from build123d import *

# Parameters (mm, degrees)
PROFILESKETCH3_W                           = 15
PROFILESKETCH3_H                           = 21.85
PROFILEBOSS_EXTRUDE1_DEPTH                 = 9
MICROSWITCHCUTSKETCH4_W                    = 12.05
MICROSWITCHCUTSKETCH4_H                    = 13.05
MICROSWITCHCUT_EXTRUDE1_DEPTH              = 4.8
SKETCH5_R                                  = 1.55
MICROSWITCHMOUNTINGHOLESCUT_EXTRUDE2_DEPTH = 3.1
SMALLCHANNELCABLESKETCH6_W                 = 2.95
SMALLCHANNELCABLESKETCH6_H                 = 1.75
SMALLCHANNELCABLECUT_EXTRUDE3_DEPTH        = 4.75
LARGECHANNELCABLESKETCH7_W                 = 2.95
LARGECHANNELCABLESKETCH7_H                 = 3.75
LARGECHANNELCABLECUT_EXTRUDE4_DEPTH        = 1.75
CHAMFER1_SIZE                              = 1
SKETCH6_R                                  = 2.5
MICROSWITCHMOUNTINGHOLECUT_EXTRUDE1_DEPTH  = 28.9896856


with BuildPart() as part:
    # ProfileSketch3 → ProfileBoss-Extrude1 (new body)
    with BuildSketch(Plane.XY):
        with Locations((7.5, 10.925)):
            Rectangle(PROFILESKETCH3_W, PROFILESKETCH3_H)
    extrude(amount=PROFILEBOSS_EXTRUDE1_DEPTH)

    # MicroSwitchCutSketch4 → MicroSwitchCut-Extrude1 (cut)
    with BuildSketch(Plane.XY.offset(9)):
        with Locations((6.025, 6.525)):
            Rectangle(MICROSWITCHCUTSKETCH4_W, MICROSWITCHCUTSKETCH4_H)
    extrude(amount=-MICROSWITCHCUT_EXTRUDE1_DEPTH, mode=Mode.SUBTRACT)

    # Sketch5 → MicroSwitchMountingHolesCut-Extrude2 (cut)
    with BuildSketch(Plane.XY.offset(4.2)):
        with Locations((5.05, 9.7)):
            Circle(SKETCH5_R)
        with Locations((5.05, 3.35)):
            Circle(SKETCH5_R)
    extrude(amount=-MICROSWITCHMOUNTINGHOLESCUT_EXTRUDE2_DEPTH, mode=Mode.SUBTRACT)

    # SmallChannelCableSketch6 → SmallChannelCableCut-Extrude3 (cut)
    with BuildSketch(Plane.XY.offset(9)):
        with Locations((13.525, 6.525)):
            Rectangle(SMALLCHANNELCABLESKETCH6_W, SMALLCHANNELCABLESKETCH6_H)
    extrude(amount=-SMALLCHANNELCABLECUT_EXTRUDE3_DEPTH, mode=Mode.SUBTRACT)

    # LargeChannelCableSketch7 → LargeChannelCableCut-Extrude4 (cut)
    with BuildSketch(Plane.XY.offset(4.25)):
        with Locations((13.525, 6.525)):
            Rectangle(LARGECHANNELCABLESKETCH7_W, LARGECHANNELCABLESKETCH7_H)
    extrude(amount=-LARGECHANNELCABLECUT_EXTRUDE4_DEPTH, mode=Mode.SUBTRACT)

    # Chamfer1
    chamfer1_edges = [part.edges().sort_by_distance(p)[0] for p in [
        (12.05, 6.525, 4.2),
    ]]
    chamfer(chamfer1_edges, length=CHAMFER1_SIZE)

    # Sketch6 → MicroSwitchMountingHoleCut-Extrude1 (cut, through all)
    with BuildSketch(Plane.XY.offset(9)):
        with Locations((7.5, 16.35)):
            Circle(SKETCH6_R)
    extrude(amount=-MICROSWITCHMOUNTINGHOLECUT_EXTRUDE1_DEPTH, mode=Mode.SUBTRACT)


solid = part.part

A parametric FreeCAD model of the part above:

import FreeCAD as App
import Part
import Sketcher

V = App.Vector
Q = App.Units.Quantity


def edges_at(feature, points):
    """Names of the edges that pass closest to the given points."""
    edges = feature.Shape.Edges
    near = lambda p: min(range(len(edges)), key=lambda i: edges[i].distToShape(Part.Vertex(*p))[0])
    return sorted({f"Edge{near(p) + 1}" for p in points})

doc = App.newDocument("Part")
body = doc.addObject("PartDesign::Body", "Body")

sketch1 = body.newObject("Sketcher::SketchObject", "Sketch")
sketch1.AttachmentSupport = (doc.getObject("XY_Plane"), [""])
sketch1.MapMode = "FlatFace"
sketch1.addGeometry([
    Part.LineSegment(V(0, 22, 0), V(0, 0, 0)),
    Part.LineSegment(V(0, 0, 0), V(15, 0, 0)),
    Part.LineSegment(V(15, 0, 0), V(15, 22, 0)),
    Part.LineSegment(V(15, 22, 0), V(0, 22, 0)),
], False)
sketch1.addConstraint([
    Sketcher.Constraint("Coincident", 0, 2, 1, 1),
    Sketcher.Constraint("Coincident", 1, 2, 2, 1),
    Sketcher.Constraint("Coincident", 2, 2, 3, 1),
    Sketcher.Constraint("Coincident", 3, 2, 0, 1),
    Sketcher.Constraint("Vertical", 0),
    Sketcher.Constraint("Horizontal", 1),
    Sketcher.Constraint("Vertical", 2),
    Sketcher.Constraint("Horizontal", 3),
    Sketcher.Constraint("Coincident", 0, 2, -1, 1),
    Sketcher.Constraint("DistanceX", 1, 1, 1, 2, Q("15 mm")),
    Sketcher.Constraint("DistanceY", 0, 2, 0, 1, Q("21.85 mm")),
])
pad1 = body.newObject("PartDesign::Pad", "Pad")
pad1.Profile = sketch1
pad1.Length = 9

sketch2 = body.newObject("Sketcher::SketchObject", "Sketch001")
sketch2.AttachmentSupport = (doc.getObject("XY_Plane"), [""])
sketch2.MapMode = "FlatFace"
sketch2.AttachmentOffset = App.Placement(V(0, 0, 9), App.Rotation())
sketch2.addGeometry([
    Part.LineSegment(V(0, 13, 0), V(0, 0, 0)),
    Part.LineSegment(V(0, 0, 0), V(12, 0, 0)),
    Part.LineSegment(V(12, 0, 0), V(12, 13, 0)),
    Part.LineSegment(V(12, 13, 0), V(0, 13, 0)),
], False)
sketch2.addConstraint([
    Sketcher.Constraint("Coincident", 0, 2, 1, 1),
    Sketcher.Constraint("Coincident", 1, 2, 2, 1),
    Sketcher.Constraint("Coincident", 2, 2, 3, 1),
    Sketcher.Constraint("Coincident", 3, 2, 0, 1),
    Sketcher.Constraint("Vertical", 0),
    Sketcher.Constraint("Horizontal", 1),
    Sketcher.Constraint("Vertical", 2),
    Sketcher.Constraint("Horizontal", 3),
    Sketcher.Constraint("Coincident", 0, 2, -1, 1),
    Sketcher.Constraint("DistanceX", 1, 1, 1, 2, Q("12.05 mm")),
    Sketcher.Constraint("DistanceY", 0, 2, 0, 1, Q("13.05 mm")),
])
pocket1 = body.newObject("PartDesign::Pocket", "Pocket")
pocket1.Profile = sketch2
pocket1.Length = 4.8

sketch3 = body.newObject("Sketcher::SketchObject", "Sketch002")
sketch3.AttachmentSupport = (doc.getObject("XY_Plane"), [""])
sketch3.MapMode = "FlatFace"
sketch3.AttachmentOffset = App.Placement(V(0, 0, 4.2), App.Rotation())
sketch3.addGeometry([
    Part.Circle(V(5, 9.7, 0), V(0, 0, 1), 1.6),
    Part.Circle(V(5, 3.4, 0), V(0, 0, 1), 1.6),
], False)
sketch3.addConstraint([
    Sketcher.Constraint("Equal", 0, 1),
    Sketcher.Constraint("Vertical", 0, 3, 1, 3),
    Sketcher.Constraint("Diameter", 0, Q("3.1 mm")),
    Sketcher.Constraint("DistanceY", -1, 1, 0, 3, Q("9.7 mm")),
    Sketcher.Constraint("DistanceX", -1, 1, 0, 3, Q("5.05 mm")),
    Sketcher.Constraint("DistanceY", -1, 1, 1, 3, Q("3.35 mm")),
])
pocket2 = body.newObject("PartDesign::Pocket", "Pocket001")
pocket2.Profile = sketch3
pocket2.Length = 3.1

sketch4 = body.newObject("Sketcher::SketchObject", "Sketch003")
sketch4.AttachmentSupport = (doc.getObject("XY_Plane"), [""])
sketch4.MapMode = "FlatFace"
sketch4.AttachmentOffset = App.Placement(V(0, 0, 9), App.Rotation())
sketch4.addGeometry([
    Part.LineSegment(V(12.1, 7.4, 0), V(12.1, 5.7, 0)),
    Part.LineSegment(V(12.1, 5.7, 0), V(15, 5.7, 0)),
    Part.LineSegment(V(15, 5.7, 0), V(15, 7.4, 0)),
    Part.LineSegment(V(15, 7.4, 0), V(12.1, 7.4, 0)),
], False)
sketch4.addConstraint([
    Sketcher.Constraint("Coincident", 0, 2, 1, 1),
    Sketcher.Constraint("Coincident", 1, 2, 2, 1),
    Sketcher.Constraint("Coincident", 2, 2, 3, 1),
    Sketcher.Constraint("Coincident", 3, 2, 0, 1),
    Sketcher.Constraint("Vertical", 0),
    Sketcher.Constraint("Horizontal", 1),
    Sketcher.Constraint("Vertical", 2),
    Sketcher.Constraint("Horizontal", 3),
    Sketcher.Constraint("DistanceX", -1, 1, 1, 2, Q("15 mm")),
    Sketcher.Constraint("DistanceX", 1, 1, 1, 2, Q("2.95 mm")),
    Sketcher.Constraint("DistanceY", 0, 2, 0, 1, Q("1.75 mm")),
    Sketcher.Constraint("DistanceY", -1, 1, 2, 2, Q("7.4 mm")),
])
pocket3 = body.newObject("PartDesign::Pocket", "Pocket002")
pocket3.Profile = sketch4
pocket3.Length = 4.75

sketch5 = body.newObject("Sketcher::SketchObject", "Sketch004")
sketch5.AttachmentSupport = (doc.getObject("XY_Plane"), [""])
sketch5.MapMode = "FlatFace"
sketch5.AttachmentOffset = App.Placement(V(0, 0, 4.25), App.Rotation())
sketch5.addGeometry([
    Part.LineSegment(V(12.1, 8.4, 0), V(12.1, 4.7, 0)),
    Part.LineSegment(V(12.1, 4.7, 0), V(15, 4.7, 0)),
    Part.LineSegment(V(15, 4.7, 0), V(15, 8.4, 0)),
    Part.LineSegment(V(15, 8.4, 0), V(12.1, 8.4, 0)),
], False)
sketch5.addConstraint([
    Sketcher.Constraint("Coincident", 0, 2, 1, 1),
    Sketcher.Constraint("Coincident", 1, 2, 2, 1),
    Sketcher.Constraint("Coincident", 2, 2, 3, 1),
    Sketcher.Constraint("Coincident", 3, 2, 0, 1),
    Sketcher.Constraint("Vertical", 0),
    Sketcher.Constraint("Horizontal", 1),
    Sketcher.Constraint("Vertical", 2),
    Sketcher.Constraint("Horizontal", 3),
    Sketcher.Constraint("DistanceX", -1, 1, 1, 2, Q("15 mm")),
    Sketcher.Constraint("DistanceX", 1, 1, 1, 2, Q("2.95 mm")),
    Sketcher.Constraint("DistanceY", 0, 2, 0, 1, Q("3.75 mm")),
    Sketcher.Constraint("DistanceY", -1, 1, 2, 2, Q("8.4 mm")),
])
pocket4 = body.newObject("PartDesign::Pocket", "Pocket003")
pocket4.Profile = sketch5
pocket4.Length = 1.75
doc.recompute()

chamfer = body.newObject("PartDesign::Chamfer", "Chamfer")
chamfer.Base = (pocket4, edges_at(pocket4, [(12.05, 6.525, 4.2)]))
chamfer.Size = 1

sketch6 = body.newObject("Sketcher::SketchObject", "Sketch005")
sketch6.AttachmentSupport = (doc.getObject("XY_Plane"), [""])
sketch6.MapMode = "FlatFace"
sketch6.AttachmentOffset = App.Placement(V(0, 0, 9), App.Rotation())
sketch6.addGeometry(Part.Circle(V(7.5, 16.4, 0), V(0, 0, 1), 2.5), False)
sketch6.addConstraint([
    Sketcher.Constraint("Diameter", 0, Q("5 mm")),
    Sketcher.Constraint("DistanceX", -1, 1, 0, 3, Q("7.5 mm")),
    Sketcher.Constraint("DistanceY", -1, 1, 0, 3, Q("16.35 mm")),
])
pocket5 = body.newObject("PartDesign::Pocket", "Pocket004")
pocket5.Profile = sketch6
pocket5.Type = "ThroughAll"

doc.recompute()
